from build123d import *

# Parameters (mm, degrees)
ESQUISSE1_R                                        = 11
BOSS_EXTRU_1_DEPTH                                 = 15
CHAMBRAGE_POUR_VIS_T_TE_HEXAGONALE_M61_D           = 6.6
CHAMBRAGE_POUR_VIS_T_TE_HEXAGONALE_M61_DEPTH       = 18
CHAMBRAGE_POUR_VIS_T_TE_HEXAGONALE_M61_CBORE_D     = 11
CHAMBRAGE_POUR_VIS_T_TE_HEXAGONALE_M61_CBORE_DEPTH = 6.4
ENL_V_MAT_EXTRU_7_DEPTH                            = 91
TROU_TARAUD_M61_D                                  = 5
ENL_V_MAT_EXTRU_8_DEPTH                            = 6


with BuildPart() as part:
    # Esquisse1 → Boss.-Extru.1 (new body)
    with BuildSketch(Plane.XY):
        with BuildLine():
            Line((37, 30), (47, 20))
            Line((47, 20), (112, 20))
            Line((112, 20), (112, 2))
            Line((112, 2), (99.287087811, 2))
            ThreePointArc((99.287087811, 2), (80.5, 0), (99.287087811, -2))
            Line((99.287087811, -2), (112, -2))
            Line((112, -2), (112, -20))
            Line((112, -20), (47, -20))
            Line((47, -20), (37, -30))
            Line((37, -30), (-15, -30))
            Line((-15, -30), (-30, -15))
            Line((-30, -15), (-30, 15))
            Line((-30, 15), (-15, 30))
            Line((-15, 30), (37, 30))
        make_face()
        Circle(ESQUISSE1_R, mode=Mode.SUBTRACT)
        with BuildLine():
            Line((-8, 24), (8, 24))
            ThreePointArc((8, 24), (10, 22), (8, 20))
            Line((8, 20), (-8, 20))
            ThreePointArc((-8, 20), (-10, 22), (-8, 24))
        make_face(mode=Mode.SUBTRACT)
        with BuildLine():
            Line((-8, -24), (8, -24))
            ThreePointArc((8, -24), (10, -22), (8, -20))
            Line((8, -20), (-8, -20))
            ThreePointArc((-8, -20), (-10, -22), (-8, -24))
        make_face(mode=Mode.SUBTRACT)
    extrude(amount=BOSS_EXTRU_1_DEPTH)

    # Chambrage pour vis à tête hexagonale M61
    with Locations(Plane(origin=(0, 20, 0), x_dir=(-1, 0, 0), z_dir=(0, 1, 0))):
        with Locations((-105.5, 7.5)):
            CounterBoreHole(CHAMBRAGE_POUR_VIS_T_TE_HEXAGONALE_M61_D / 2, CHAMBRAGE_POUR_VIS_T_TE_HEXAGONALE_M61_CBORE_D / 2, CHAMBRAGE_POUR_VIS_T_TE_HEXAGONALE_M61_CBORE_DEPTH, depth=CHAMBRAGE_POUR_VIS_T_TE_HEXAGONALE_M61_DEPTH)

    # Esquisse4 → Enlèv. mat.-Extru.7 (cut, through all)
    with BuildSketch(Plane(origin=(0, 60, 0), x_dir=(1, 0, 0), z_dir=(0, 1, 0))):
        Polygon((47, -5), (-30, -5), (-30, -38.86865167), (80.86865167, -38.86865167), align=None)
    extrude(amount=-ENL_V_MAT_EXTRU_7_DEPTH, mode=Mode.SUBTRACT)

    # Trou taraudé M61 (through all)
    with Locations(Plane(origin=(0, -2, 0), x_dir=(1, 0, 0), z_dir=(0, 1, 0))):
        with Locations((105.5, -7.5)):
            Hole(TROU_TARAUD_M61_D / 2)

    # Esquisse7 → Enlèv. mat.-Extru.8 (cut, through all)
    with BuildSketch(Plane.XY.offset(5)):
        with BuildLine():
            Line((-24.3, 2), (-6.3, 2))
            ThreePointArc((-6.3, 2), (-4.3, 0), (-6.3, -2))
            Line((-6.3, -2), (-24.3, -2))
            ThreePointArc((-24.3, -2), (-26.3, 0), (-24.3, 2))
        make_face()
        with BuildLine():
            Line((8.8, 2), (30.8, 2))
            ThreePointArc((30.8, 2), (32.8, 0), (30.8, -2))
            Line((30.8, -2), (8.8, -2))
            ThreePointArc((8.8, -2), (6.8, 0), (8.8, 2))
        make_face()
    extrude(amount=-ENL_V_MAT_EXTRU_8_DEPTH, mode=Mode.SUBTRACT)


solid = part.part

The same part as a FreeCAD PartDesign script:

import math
import FreeCAD as App
import Part
import Sketcher
Q = App.Units.Quantity

doc = App.newDocument("Part")
params = doc.addObject("Spreadsheet::Sheet", "Params")
for row, (alias, value) in enumerate([
    ("sketch1_diameter", "22 mm"),
    ("sketch1_radius", "2 mm"),
    ("sketch1_radius2", "9.5 mm"),
    ("sketch1_width", "52 mm"),
    ("sketch1_width2", "65 mm"),
    ("pad1_length", "15 mm"),
    ("sketch2_diameter", "6.6 mm"),
    ("hole_diameter", "6.6 mm"),
    ("hole_depth", "18 mm"),
    ("hole_cbore_diameter", "11 mm"),
    ("hole_cbore_depth", "6.4 mm"),
    ("sketch3_width", "77 mm"),
    ("sketch4_diameter", "5 mm"),
    ("hole2_diameter", "5 mm"),
    ("sketch5_radius", "2 mm"),
    ("sketch5_width", "18 mm"),
    ("sketch5_width2", "22 mm"),
], start=1):
    params.set(f"A{row}", alias)
    params.set(f"B{row}", "=" + value)
    params.setAlias(f"B{row}", alias)

body = doc.addObject("PartDesign::Body", "Body")

# Sketch on XY plane
sketch1 = doc.addObject("Sketcher::SketchObject", "Sketch")
body.addObject(sketch1)
sketch1.AttachmentSupport = (doc.XY_Plane, [""])
sketch1.MapMode = "FlatFace"
sketch1.addGeometry(Part.LineSegment(App.Vector(47, 20, 0), App.Vector(37, 30, 0)), False)
sketch1.addGeometry(Part.LineSegment(App.Vector(37, 30, 0), App.Vector(-15, 30, 0)), False)
sketch1.addGeometry(Part.LineSegment(App.Vector(-15, 30, 0), App.Vector(-30, 15, 0)), False)
sketch1.addGeometry(Part.LineSegment(App.Vector(-30, 15, 0), App.Vector(-30, -15, 0)), False)
sketch1.addGeometry(Part.LineSegment(App.Vector(-30, -15, 0), App.Vector(-15, -30, 0)), False)
sketch1.addGeometry(Part.LineSegment(App.Vector(-15, -30, 0), App.Vector(37, -30, 0)), False)
sketch1.addGeometry(Part.LineSegment(App.Vector(37, -30, 0), App.Vector(47, -20, 0)), False)
sketch1.addGeometry(Part.LineSegment(App.Vector(47, -20, 0), App.Vector(112, -20, 0)), False)
sketch1.addGeometry(Part.LineSegment(App.Vector(112, -20, 0), App.Vector(112, -2, 0)), False)
sketch1.addGeometry(Part.LineSegment(App.Vector(112, -2, 0), App.Vector(99.3, -2, 0)), False)
sketch1.addGeometry(Part.ArcOfCircle(Part.Circle(App.Vector(90, 0, 0), App.Vector(0, 0, 1), 9.5), math.radians(12), math.radians(348)), False)
sketch1.addGeometry(Part.LineSegment(App.Vector(99.3, 2, 0), App.Vector(112, 2, 0)), False)
sketch1.addGeometry(Part.LineSegment(App.Vector(112, 2, 0), App.Vector(112, 20, 0)), False)
sketch1.addGeometry(Part.LineSegment(App.Vector(112, 20, 0), App.Vector(47, 20, 0)), False)
sketch1.addGeometry(Part.ArcOfCircle(Part.Circle(App.Vector(-8, -22, 0), App.Vector(0, 0, 1), 2), math.radians(90), math.radians(270)), False)
sketch1.addGeometry(Part.LineSegment(App.Vector(-8, -20, 0), App.Vector(8, -20, 0)), False)
sketch1.addGeometry(Part.ArcOfCircle(Part.Circle(App.Vector(8, -22, 0), App.Vector(0, 0, 1), 2), math.radians(-90), math.radians(90)), False)
sketch1.addGeometry(Part.LineSegment(App.Vector(8, -24, 0), App.Vector(-8, -24, 0)), False)
sketch1.addGeometry(Part.Circle(App.Vector(0, 0, 0), App.Vector(0, 0, 1), 11), False)
sketch1.addGeometry(Part.LineSegment(App.Vector(-8, 24, 0), App.Vector(8, 24, 0)), False)
sketch1.addGeometry(Part.ArcOfCircle(Part.Circle(App.Vector(8, 22, 0), App.Vector(0, 0, 1), 2), math.radians(-90), math.radians(90)), False)
sketch1.addGeometry(Part.LineSegment(App.Vector(8, 20, 0), App.Vector(-8, 20, 0)), False)
sketch1.addGeometry(Part.ArcOfCircle(Part.Circle(App.Vector(-8, 22, 0), App.Vector(0, 0, 1), 2), math.radians(90), math.radians(270)), False)
sketch1.addConstraint(Sketcher.Constraint("Coincident", 0, 2, 1, 1))
sketch1.addConstraint(Sketcher.Constraint("Coincident", 1, 2, 2, 1))
sketch1.addConstraint(Sketcher.Constraint("Coincident", 2, 2, 3, 1))
sketch1.addConstraint(Sketcher.Constraint("Coincident", 3, 2, 4, 1))
sketch1.addConstraint(Sketcher.Constraint("Coincident", 4, 2, 5, 1))
sketch1.addConstraint(Sketcher.Constraint("Coincident", 5, 2, 6, 1))
sketch1.addConstraint(Sketcher.Constraint("Coincident", 6, 2, 7, 1))
sketch1.addConstraint(Sketcher.Constraint("Coincident", 7, 2, 8, 1))
sketch1.addConstraint(Sketcher.Constraint("Coincident", 8, 2, 9, 1))
sketch1.addConstraint(Sketcher.Constraint("Coincident", 9, 2, 10, 2))
sketch1.addConstraint(Sketcher.Constraint("Coincident", 10, 1, 11, 1))
sketch1.addConstraint(Sketcher.Constraint("Coincident", 11, 2, 12, 1))
sketch1.addConstraint(Sketcher.Constraint("Coincident", 12, 2, 13, 1))
sketch1.addConstraint(Sketcher.Constraint("Coincident", 13, 2, 0, 1))
sketch1.addConstraint(Sketcher.Constraint("Tangent", 14, 1, 15, 1))
sketch1.addConstraint(Sketcher.Constraint("Tangent", 15, 2, 16, 2))
sketch1.addConstraint(Sketcher.Constraint("Tangent", 16, 1, 17, 1))
sketch1.addConstraint(Sketcher.Constraint("Tangent", 17, 2, 14, 2))
sketch1.addConstraint(Sketcher.Constraint("Tangent", 19, 2, 20, 2))
sketch1.addConstraint(Sketcher.Constraint("Tangent", 20, 1, 21, 1))
sketch1.addConstraint(Sketcher.Constraint("Tangent", 21, 2, 22, 2))
sketch1.addConstraint(Sketcher.Constraint("Tangent", 22, 1, 19, 1))
sketch1.addConstraint(Sketcher.Constraint("Horizontal", 1))
sketch1.addConstraint(Sketcher.Constraint("Vertical", 3))
sketch1.addConstraint(Sketcher.Constraint("Horizontal", 5))
sketch1.addConstraint(Sketcher.Constraint("Horizontal", 7))
sketch1.addConstraint(Sketcher.Constraint("Vertical", 8))
sketch1.addConstraint(Sketcher.Constraint("Horizontal", 9))
sketch1.addConstraint(Sketcher.Constraint("Horizontal", 11))
sketch1.addConstraint(Sketcher.Constraint("Vertical", 12))
sketch1.addConstraint(Sketcher.Constraint("Horizontal", 13))
sketch1.addConstraint(Sketcher.Constraint("Horizontal", 15))
sketch1.addConstraint(Sketcher.Constraint("Horizontal", 17))
sketch1.addConstraint(Sketcher.Constraint("Horizontal", 19))
sketch1.addConstraint(Sketcher.Constraint("Horizontal", 21))
sketch1.addConstraint(Sketcher.Constraint("Coincident", 18, 3, -1, 1))
sketch1.addConstraint(Sketcher.Constraint("Equal", 16, 20))
sketch1.addConstraint(Sketcher.Constraint("Symmetric", 14, 3, 20, 3, -1, 1))
sketch1.addConstraint(Sketcher.Constraint("Symmetric", 1, 2, 4, 2, -1))
sketch1.addConstraint(Sketcher.Constraint("Symmetric", 9, 2, 10, 1, -1))
sketch1.addConstraint(Sketcher.Constraint("Symmetric", 7, 2, 12, 2, -1))
sketch1.addConstraint(Sketcher.Constraint("Perpendicular", 0, 2))
sketch1.addConstraint(Sketcher.Constraint("Perpendicular", 2, 4))
sketch1.addConstraint(Sketcher.Constraint("Perpendicular", 4, 6))
sketch1.addConstraint(Sketcher.Constraint("Horizontal", 7, 2, 14, 1))
sketch1.addConstraint(Sketcher.Constraint("Vertical", 16, 3, 20, 3))
sketch1.addConstraint(Sketcher.Constraint("Vertical", 14, 3, 22, 3))
sketch1.addConstraint(Sketcher.Constraint("Vertical", 0, 2, 5, 2))
sketch1.addConstraint(Sketcher.Constraint("Vertical", 6, 2, 13, 2))
sketch1.addConstraint(Sketcher.Constraint("Diameter", 18, 22.0))
sketch1.addConstraint(Sketcher.Constraint("Radius", 14, 2.0))
sketch1.addConstraint(Sketcher.Constraint("Radius", 10, 9.5))
sketch1.addConstraint(Sketcher.Constraint("DistanceX", 1, 2, 1, 1, 52.0))
sketch1.addConstraint(Sketcher.Constraint("DistanceX", 7, 1, 7, 2, 65.0))
sketch1.addConstraint(Sketcher.Constraint("DistanceX", 15, 1, 15, 2, 16.0))
sketch1.addConstraint(Sketcher.Constraint("DistanceY", 3, 2, 3, 1, 30.0))
sketch1.addConstraint(Sketcher.Constraint("DistanceY", 8, 1, 8, 2, 18.0))
sketch1.addConstraint(Sketcher.Constraint("DistanceX", -1, 1, 10, 3, 90.0))
sketch1.addConstraint(Sketcher.Constraint("DistanceY", 14, 3, -1, 1, 22.0))
sketch1.addConstraint(Sketcher.Constraint("DistanceX", -1, 1, 0, 2, 37.0))
sketch1.addConstraint(Sketcher.Constraint("DistanceY", -1, 1, 0, 2, 30.0))
sketch1.setExpression("Constraints[49]", "Params.sketch1_diameter")
sketch1.setExpression("Constraints[50]", "Params.sketch1_radius")
sketch1.setExpression("Constraints[51]", "Params.sketch1_radius2")
sketch1.setExpression("Constraints[52]", "Params.sketch1_width")
sketch1.setExpression("Constraints[53]", "Params.sketch1_width2")
pad1 = doc.addObject("PartDesign::Pad", "Pad")
body.addObject(pad1)
pad1.Profile = sketch1
pad1.setExpression("Length", "Params.pad1_length")

# Sketch on XZ plane
sketch2 = doc.addObject("Sketcher::SketchObject", "Sketch001")
body.addObject(sketch2)
sketch2.AttachmentSupport = (doc.XZ_Plane, [""])
sketch2.MapMode = "FlatFace"
sketch2.AttachmentOffset = App.Placement(App.Vector(0, 0, -20), App.Rotation())
sketch2.addGeometry(Part.Circle(App.Vector(105.5, 7.5, 0), App.Vector(0, 0, 1), 3.3), False)
sketch2.addConstraint(Sketcher.Constraint("Diameter", 0, 6.6))
sketch2.addConstraint(Sketcher.Constraint("DistanceX", -1, 1, 0, 3, 105.5))
sketch2.addConstraint(Sketcher.Constraint("DistanceY", -1, 1, 0, 3, 7.5))
sketch2.setExpression("Constraints[0]", "Params.sketch2_diameter")
doc.recompute()
hole = doc.addObject("PartDesign::Hole", "Hole")
body.addObject(hole)
hole.Profile = sketch2
hole.ThreadType = "None"
hole.setExpression("Diameter", "Params.hole_diameter")
hole.DepthType = "Dimension"
hole.setExpression("Depth", "Params.hole_depth")
hole.DrillPoint = "Flat"
hole.HoleCutType = "Counterbore"
hole.setExpression("HoleCutDiameter", "Params.hole_cbore_diameter")
hole.setExpression("HoleCutDepth", "Params.hole_cbore_depth")
hole.Reversed = True

# Sketch on XZ plane
sketch3 = doc.addObject("Sketcher::SketchObject", "Sketch002")
body.addObject(sketch3)
sketch3.AttachmentSupport = (doc.XZ_Plane, [""])
sketch3.MapMode = "FlatFace"
sketch3.AttachmentOffset = App.Placement(App.Vector(0, 0, -60), App.Rotation())
sketch3.addGeometry(Part.LineSegment(App.Vector(47, 5, 0), App.Vector(-30, 5, 0)), False)
sketch3.addGeometry(Part.LineSegment(App.Vector(-30, 5, 0), App.Vector(-30, 39, 0)), False)
sketch3.addGeometry(Part.LineSegment(App.Vector(-30, 39, 0), App.Vector(81, 39, 0)), False)
sketch3.addGeometry(Part.LineSegment(App.Vector(81, 39, 0), App.Vector(47, 5, 0)), False)
sketch3.addConstraint(Sketcher.Constraint("Coincident", 0, 2, 1, 1))
sketch3.addConstraint(Sketcher.Constraint("Coincident", 1, 2, 2, 1))
sketch3.addConstraint(Sketcher.Constraint("Coincident", 2, 2, 3, 1))
sketch3.addConstraint(Sketcher.Constraint("Coincident", 3, 2, 0, 1))
sketch3.addConstraint(Sketcher.Constraint("Horizontal", 0))
sketch3.addConstraint(Sketcher.Constraint("Vertical", 1))
sketch3.addConstraint(Sketcher.Constraint("Horizontal", 2))
sketch3.addConstraint(Sketcher.Constraint("DistanceX", 0, 2, 0, 1, 77.0))
sketch3.addConstraint(Sketcher.Constraint("Angle", 3, Q("-135 deg")))
sketch3.addConstraint(Sketcher.Constraint("DistanceX", 0, 2, -1, 1, 30.0))
sketch3.addConstraint(Sketcher.Constraint("DistanceY", -1, 1, 0, 2, 5.0))
sketch3.addConstraint(Sketcher.Constraint("DistanceX", 2, 1, 2, 2, 110.868652))
sketch3.setExpression("Constraints[7]", "Params.sketch3_width")
pocket1 = doc.addObject("PartDesign::Pocket", "Pocket")
body.addObject(pocket1)
pocket1.Profile = sketch3
pocket1.Type = "ThroughAll"
pocket1.Reversed = True

# Sketch on XZ plane
sketch4 = doc.addObject("Sketcher::SketchObject", "Sketch003")
body.addObject(sketch4)
sketch4.AttachmentSupport = (doc.XZ_Plane, [""])
sketch4.MapMode = "FlatFace"
sketch4.AttachmentOffset = App.Placement(App.Vector(0, 0, 2), App.Rotation())
sketch4.addGeometry(Part.Circle(App.Vector(105.5, 7.5, 0), App.Vector(0, 0, 1), 2.5), False)
sketch4.addConstraint(Sketcher.Constraint("Diameter", 0, 5.0))
sketch4.addConstraint(Sketcher.Constraint("DistanceX", -1, 1, 0, 3, 105.5))
sketch4.addConstraint(Sketcher.Constraint("DistanceY", -1, 1, 0, 3, 7.5))
sketch4.setExpression("Constraints[0]", "Params.sketch4_diameter")
doc.recompute()
hole2 = doc.addObject("PartDesign::Hole", "Hole001")
body.addObject(hole2)
hole2.Profile = sketch4
hole2.ThreadType = "None"
hole2.setExpression("Diameter", "Params.hole2_diameter")
hole2.DepthType = "ThroughAll"
hole2.Reversed = True

# Sketch on XY plane
sketch5 = doc.addObject("Sketcher::SketchObject", "Sketch004")
body.addObject(sketch5)
sketch5.AttachmentSupport = (doc.XY_Plane, [""])
sketch5.MapMode = "FlatFace"
sketch5.AttachmentOffset = App.Placement(App.Vector(0, 0, 5), App.Rotation())
sketch5.addGeometry(Part.LineSegment(App.Vector(-6.3, 2, 0), App.Vector(-24.3, 2, 0)), False)
sketch5.addGeometry(Part.ArcOfCircle(Part.Circle(App.Vector(-24.3, 0, 0), App.Vector(0, 0, 1), 2), math.radians(90), math.radians(270)), False)
sketch5.addGeometry(Part.LineSegment(App.Vector(-24.3, -2, 0), App.Vector(-6.3, -2, 0)), False)
sketch5.addGeometry(Part.ArcOfCircle(Part.Circle(App.Vector(-6.3, 0, 0), App.Vector(0, 0, 1), 2), math.radians(-90), math.radians(90)), False)
sketch5.addGeometry(Part.LineSegment(App.Vector(30.8, 2, 0), App.Vector(8.8, 2, 0)), False)
sketch5.addGeometry(Part.ArcOfCircle(Part.Circle(App.Vector(8.8, 0, 0), App.Vector(0, 0, 1), 2), math.radians(90), math.radians(270)), False)
sketch5.addGeometry(Part.LineSegment(App.Vector(8.8, -2, 0), App.Vector(30.8, -2, 0)), False)
sketch5.addGeometry(Part.ArcOfCircle(Part.Circle(App.Vector(30.8, 0, 0), App.Vector(0, 0, 1), 2), math.radians(-90), math.radians(90)), False)
sketch5.addConstraint(Sketcher.Constraint("Tangent", 0, 2, 1, 1))
sketch5.addConstraint(Sketcher.Constraint("Tangent", 1, 2, 2, 1))
sketch5.addConstraint(Sketcher.Constraint("Tangent", 2, 2, 3, 1))
sketch5.addConstraint(Sketcher.Constraint("Tangent", 3, 2, 0, 1))
sketch5.addConstraint(Sketcher.Constraint("Tangent", 4, 2, 5, 1))
sketch5.addConstraint(Sketcher.Constraint("Tangent", 5, 2, 6, 1))
sketch5.addConstraint(Sketcher.Constraint("Tangent", 6, 2, 7, 1))
sketch5.addConstraint(Sketcher.Constraint("Tangent", 7, 2, 4, 1))
sketch5.addConstraint(Sketcher.Constraint("Horizontal", 0))
sketch5.addConstraint(Sketcher.Constraint("Horizontal", 2))
sketch5.addConstraint(Sketcher.Constraint("Horizontal", 4))
sketch5.addConstraint(Sketcher.Constraint("Horizontal", 6))
sketch5.addConstraint(Sketcher.Constraint("Equal", 3, 5))
sketch5.addConstraint(Sketcher.Constraint("PointOnObject", 1, 3, -1))
sketch5.addConstraint(Sketcher.Constraint("PointOnObject", 5, 3, -1))
sketch5.addConstraint(Sketcher.Constraint("Radius", 1, 2.0))
sketch5.addConstraint(Sketcher.Constraint("DistanceX", 0, 2, 0, 1, 18.0))
sketch5.addConstraint(Sketcher.Constraint("DistanceX", 4, 2, 4, 1, 22.0))
sketch5.addConstraint(Sketcher.Constraint("DistanceX", 1, 3, -1, 1, 24.3))
sketch5.addConstraint(Sketcher.Constraint("DistanceX", -1, 1, 5, 3, 8.8))
sketch5.setExpression("Constraints[15]", "Params.sketch5_radius")
sketch5.setExpression("Constraints[16]", "Params.sketch5_width")
sketch5.setExpression("Constraints[17]", "Params.sketch5_width2")
pocket2 = doc.addObject("PartDesign::Pocket", "Pocket001")
body.addObject(pocket2)
pocket2.Profile = sketch5
pocket2.Type = "ThroughAll"

doc.recompute()
